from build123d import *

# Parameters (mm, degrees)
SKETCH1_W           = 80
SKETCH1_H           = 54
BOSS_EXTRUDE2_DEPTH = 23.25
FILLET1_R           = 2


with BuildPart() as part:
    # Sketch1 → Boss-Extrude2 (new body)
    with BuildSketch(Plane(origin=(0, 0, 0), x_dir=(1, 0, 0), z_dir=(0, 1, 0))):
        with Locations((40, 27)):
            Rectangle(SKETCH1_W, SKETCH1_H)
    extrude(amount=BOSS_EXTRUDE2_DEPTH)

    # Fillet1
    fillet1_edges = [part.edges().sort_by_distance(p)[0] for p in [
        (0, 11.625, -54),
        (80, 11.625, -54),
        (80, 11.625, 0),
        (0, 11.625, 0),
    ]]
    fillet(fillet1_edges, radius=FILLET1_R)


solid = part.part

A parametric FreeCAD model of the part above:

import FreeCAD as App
import Part
import Sketcher
Q = App.Units.Quantity


def edges_at(feature, points):
    """Names of the edges that pass closest to the given points."""
    edges = feature.Shape.Edges
    near = lambda p: min(range(len(edges)), key=lambda i: edges[i].distToShape(Part.Vertex(*p))[0])
    return sorted({f"Edge{near(p) + 1}" for p in points})


def add_polygon(sketch, points):
    """Adds a closed chain of lines whose ends are joined by coincident constraints."""
    first, n = sketch.GeometryCount, len(points)
    for a, b in zip(points, points[1:] + points[:1]):
        sketch.addGeometry(Part.LineSegment(App.Vector(*a, 0), App.Vector(*b, 0)), False)
    for i in range(n):
        sketch.addConstraint(Sketcher.Constraint("Coincident", first + i, 2, first + (i + 1) % n, 1))

doc = App.newDocument("Part")
body = doc.addObject("PartDesign::Body", "Body")

# Sketch on XZ plane
sketch1 = body.newObject("Sketcher::SketchObject", "Sketch")
sketch1.AttachmentSupport = (doc.getObject("XZ_Plane"), [""])
sketch1.MapMode = "FlatFace"
add_polygon(sketch1, [(0, -54), (0, 0), (80, 0), (80, -54)])  # lines 0-3
sketch1.addConstraint([
    Sketcher.Constraint("Vertical", 0),
    Sketcher.Constraint("Horizontal", 1),
    Sketcher.Constraint("Vertical", 2),
    Sketcher.Constraint("Horizontal", 3),
    Sketcher.Constraint("Coincident", 0, 2, -1, 1),
    Sketcher.Constraint("DistanceX", 1, 1, 1, 2, Q("80 mm")),
    Sketcher.Constraint("DistanceY", 0, 1, 0, 2, Q("54 mm")),
])
pad1 = body.newObject("PartDesign::Pad", "Pad")
pad1.Profile = sketch1
pad1.Length = 23.25
pad1.Reversed = True
doc.recompute()

fillet = body.newObject("PartDesign::Fillet", "Fillet")
fillet.Base = (pad1, edges_at(pad1, [
    (0, 11.625, -54),
    (80, 11.625, -54),
    (80, 11.625, 0),
    (0, 11.625, 0),
]))
fillet.Radius = 2

doc.recompute()
